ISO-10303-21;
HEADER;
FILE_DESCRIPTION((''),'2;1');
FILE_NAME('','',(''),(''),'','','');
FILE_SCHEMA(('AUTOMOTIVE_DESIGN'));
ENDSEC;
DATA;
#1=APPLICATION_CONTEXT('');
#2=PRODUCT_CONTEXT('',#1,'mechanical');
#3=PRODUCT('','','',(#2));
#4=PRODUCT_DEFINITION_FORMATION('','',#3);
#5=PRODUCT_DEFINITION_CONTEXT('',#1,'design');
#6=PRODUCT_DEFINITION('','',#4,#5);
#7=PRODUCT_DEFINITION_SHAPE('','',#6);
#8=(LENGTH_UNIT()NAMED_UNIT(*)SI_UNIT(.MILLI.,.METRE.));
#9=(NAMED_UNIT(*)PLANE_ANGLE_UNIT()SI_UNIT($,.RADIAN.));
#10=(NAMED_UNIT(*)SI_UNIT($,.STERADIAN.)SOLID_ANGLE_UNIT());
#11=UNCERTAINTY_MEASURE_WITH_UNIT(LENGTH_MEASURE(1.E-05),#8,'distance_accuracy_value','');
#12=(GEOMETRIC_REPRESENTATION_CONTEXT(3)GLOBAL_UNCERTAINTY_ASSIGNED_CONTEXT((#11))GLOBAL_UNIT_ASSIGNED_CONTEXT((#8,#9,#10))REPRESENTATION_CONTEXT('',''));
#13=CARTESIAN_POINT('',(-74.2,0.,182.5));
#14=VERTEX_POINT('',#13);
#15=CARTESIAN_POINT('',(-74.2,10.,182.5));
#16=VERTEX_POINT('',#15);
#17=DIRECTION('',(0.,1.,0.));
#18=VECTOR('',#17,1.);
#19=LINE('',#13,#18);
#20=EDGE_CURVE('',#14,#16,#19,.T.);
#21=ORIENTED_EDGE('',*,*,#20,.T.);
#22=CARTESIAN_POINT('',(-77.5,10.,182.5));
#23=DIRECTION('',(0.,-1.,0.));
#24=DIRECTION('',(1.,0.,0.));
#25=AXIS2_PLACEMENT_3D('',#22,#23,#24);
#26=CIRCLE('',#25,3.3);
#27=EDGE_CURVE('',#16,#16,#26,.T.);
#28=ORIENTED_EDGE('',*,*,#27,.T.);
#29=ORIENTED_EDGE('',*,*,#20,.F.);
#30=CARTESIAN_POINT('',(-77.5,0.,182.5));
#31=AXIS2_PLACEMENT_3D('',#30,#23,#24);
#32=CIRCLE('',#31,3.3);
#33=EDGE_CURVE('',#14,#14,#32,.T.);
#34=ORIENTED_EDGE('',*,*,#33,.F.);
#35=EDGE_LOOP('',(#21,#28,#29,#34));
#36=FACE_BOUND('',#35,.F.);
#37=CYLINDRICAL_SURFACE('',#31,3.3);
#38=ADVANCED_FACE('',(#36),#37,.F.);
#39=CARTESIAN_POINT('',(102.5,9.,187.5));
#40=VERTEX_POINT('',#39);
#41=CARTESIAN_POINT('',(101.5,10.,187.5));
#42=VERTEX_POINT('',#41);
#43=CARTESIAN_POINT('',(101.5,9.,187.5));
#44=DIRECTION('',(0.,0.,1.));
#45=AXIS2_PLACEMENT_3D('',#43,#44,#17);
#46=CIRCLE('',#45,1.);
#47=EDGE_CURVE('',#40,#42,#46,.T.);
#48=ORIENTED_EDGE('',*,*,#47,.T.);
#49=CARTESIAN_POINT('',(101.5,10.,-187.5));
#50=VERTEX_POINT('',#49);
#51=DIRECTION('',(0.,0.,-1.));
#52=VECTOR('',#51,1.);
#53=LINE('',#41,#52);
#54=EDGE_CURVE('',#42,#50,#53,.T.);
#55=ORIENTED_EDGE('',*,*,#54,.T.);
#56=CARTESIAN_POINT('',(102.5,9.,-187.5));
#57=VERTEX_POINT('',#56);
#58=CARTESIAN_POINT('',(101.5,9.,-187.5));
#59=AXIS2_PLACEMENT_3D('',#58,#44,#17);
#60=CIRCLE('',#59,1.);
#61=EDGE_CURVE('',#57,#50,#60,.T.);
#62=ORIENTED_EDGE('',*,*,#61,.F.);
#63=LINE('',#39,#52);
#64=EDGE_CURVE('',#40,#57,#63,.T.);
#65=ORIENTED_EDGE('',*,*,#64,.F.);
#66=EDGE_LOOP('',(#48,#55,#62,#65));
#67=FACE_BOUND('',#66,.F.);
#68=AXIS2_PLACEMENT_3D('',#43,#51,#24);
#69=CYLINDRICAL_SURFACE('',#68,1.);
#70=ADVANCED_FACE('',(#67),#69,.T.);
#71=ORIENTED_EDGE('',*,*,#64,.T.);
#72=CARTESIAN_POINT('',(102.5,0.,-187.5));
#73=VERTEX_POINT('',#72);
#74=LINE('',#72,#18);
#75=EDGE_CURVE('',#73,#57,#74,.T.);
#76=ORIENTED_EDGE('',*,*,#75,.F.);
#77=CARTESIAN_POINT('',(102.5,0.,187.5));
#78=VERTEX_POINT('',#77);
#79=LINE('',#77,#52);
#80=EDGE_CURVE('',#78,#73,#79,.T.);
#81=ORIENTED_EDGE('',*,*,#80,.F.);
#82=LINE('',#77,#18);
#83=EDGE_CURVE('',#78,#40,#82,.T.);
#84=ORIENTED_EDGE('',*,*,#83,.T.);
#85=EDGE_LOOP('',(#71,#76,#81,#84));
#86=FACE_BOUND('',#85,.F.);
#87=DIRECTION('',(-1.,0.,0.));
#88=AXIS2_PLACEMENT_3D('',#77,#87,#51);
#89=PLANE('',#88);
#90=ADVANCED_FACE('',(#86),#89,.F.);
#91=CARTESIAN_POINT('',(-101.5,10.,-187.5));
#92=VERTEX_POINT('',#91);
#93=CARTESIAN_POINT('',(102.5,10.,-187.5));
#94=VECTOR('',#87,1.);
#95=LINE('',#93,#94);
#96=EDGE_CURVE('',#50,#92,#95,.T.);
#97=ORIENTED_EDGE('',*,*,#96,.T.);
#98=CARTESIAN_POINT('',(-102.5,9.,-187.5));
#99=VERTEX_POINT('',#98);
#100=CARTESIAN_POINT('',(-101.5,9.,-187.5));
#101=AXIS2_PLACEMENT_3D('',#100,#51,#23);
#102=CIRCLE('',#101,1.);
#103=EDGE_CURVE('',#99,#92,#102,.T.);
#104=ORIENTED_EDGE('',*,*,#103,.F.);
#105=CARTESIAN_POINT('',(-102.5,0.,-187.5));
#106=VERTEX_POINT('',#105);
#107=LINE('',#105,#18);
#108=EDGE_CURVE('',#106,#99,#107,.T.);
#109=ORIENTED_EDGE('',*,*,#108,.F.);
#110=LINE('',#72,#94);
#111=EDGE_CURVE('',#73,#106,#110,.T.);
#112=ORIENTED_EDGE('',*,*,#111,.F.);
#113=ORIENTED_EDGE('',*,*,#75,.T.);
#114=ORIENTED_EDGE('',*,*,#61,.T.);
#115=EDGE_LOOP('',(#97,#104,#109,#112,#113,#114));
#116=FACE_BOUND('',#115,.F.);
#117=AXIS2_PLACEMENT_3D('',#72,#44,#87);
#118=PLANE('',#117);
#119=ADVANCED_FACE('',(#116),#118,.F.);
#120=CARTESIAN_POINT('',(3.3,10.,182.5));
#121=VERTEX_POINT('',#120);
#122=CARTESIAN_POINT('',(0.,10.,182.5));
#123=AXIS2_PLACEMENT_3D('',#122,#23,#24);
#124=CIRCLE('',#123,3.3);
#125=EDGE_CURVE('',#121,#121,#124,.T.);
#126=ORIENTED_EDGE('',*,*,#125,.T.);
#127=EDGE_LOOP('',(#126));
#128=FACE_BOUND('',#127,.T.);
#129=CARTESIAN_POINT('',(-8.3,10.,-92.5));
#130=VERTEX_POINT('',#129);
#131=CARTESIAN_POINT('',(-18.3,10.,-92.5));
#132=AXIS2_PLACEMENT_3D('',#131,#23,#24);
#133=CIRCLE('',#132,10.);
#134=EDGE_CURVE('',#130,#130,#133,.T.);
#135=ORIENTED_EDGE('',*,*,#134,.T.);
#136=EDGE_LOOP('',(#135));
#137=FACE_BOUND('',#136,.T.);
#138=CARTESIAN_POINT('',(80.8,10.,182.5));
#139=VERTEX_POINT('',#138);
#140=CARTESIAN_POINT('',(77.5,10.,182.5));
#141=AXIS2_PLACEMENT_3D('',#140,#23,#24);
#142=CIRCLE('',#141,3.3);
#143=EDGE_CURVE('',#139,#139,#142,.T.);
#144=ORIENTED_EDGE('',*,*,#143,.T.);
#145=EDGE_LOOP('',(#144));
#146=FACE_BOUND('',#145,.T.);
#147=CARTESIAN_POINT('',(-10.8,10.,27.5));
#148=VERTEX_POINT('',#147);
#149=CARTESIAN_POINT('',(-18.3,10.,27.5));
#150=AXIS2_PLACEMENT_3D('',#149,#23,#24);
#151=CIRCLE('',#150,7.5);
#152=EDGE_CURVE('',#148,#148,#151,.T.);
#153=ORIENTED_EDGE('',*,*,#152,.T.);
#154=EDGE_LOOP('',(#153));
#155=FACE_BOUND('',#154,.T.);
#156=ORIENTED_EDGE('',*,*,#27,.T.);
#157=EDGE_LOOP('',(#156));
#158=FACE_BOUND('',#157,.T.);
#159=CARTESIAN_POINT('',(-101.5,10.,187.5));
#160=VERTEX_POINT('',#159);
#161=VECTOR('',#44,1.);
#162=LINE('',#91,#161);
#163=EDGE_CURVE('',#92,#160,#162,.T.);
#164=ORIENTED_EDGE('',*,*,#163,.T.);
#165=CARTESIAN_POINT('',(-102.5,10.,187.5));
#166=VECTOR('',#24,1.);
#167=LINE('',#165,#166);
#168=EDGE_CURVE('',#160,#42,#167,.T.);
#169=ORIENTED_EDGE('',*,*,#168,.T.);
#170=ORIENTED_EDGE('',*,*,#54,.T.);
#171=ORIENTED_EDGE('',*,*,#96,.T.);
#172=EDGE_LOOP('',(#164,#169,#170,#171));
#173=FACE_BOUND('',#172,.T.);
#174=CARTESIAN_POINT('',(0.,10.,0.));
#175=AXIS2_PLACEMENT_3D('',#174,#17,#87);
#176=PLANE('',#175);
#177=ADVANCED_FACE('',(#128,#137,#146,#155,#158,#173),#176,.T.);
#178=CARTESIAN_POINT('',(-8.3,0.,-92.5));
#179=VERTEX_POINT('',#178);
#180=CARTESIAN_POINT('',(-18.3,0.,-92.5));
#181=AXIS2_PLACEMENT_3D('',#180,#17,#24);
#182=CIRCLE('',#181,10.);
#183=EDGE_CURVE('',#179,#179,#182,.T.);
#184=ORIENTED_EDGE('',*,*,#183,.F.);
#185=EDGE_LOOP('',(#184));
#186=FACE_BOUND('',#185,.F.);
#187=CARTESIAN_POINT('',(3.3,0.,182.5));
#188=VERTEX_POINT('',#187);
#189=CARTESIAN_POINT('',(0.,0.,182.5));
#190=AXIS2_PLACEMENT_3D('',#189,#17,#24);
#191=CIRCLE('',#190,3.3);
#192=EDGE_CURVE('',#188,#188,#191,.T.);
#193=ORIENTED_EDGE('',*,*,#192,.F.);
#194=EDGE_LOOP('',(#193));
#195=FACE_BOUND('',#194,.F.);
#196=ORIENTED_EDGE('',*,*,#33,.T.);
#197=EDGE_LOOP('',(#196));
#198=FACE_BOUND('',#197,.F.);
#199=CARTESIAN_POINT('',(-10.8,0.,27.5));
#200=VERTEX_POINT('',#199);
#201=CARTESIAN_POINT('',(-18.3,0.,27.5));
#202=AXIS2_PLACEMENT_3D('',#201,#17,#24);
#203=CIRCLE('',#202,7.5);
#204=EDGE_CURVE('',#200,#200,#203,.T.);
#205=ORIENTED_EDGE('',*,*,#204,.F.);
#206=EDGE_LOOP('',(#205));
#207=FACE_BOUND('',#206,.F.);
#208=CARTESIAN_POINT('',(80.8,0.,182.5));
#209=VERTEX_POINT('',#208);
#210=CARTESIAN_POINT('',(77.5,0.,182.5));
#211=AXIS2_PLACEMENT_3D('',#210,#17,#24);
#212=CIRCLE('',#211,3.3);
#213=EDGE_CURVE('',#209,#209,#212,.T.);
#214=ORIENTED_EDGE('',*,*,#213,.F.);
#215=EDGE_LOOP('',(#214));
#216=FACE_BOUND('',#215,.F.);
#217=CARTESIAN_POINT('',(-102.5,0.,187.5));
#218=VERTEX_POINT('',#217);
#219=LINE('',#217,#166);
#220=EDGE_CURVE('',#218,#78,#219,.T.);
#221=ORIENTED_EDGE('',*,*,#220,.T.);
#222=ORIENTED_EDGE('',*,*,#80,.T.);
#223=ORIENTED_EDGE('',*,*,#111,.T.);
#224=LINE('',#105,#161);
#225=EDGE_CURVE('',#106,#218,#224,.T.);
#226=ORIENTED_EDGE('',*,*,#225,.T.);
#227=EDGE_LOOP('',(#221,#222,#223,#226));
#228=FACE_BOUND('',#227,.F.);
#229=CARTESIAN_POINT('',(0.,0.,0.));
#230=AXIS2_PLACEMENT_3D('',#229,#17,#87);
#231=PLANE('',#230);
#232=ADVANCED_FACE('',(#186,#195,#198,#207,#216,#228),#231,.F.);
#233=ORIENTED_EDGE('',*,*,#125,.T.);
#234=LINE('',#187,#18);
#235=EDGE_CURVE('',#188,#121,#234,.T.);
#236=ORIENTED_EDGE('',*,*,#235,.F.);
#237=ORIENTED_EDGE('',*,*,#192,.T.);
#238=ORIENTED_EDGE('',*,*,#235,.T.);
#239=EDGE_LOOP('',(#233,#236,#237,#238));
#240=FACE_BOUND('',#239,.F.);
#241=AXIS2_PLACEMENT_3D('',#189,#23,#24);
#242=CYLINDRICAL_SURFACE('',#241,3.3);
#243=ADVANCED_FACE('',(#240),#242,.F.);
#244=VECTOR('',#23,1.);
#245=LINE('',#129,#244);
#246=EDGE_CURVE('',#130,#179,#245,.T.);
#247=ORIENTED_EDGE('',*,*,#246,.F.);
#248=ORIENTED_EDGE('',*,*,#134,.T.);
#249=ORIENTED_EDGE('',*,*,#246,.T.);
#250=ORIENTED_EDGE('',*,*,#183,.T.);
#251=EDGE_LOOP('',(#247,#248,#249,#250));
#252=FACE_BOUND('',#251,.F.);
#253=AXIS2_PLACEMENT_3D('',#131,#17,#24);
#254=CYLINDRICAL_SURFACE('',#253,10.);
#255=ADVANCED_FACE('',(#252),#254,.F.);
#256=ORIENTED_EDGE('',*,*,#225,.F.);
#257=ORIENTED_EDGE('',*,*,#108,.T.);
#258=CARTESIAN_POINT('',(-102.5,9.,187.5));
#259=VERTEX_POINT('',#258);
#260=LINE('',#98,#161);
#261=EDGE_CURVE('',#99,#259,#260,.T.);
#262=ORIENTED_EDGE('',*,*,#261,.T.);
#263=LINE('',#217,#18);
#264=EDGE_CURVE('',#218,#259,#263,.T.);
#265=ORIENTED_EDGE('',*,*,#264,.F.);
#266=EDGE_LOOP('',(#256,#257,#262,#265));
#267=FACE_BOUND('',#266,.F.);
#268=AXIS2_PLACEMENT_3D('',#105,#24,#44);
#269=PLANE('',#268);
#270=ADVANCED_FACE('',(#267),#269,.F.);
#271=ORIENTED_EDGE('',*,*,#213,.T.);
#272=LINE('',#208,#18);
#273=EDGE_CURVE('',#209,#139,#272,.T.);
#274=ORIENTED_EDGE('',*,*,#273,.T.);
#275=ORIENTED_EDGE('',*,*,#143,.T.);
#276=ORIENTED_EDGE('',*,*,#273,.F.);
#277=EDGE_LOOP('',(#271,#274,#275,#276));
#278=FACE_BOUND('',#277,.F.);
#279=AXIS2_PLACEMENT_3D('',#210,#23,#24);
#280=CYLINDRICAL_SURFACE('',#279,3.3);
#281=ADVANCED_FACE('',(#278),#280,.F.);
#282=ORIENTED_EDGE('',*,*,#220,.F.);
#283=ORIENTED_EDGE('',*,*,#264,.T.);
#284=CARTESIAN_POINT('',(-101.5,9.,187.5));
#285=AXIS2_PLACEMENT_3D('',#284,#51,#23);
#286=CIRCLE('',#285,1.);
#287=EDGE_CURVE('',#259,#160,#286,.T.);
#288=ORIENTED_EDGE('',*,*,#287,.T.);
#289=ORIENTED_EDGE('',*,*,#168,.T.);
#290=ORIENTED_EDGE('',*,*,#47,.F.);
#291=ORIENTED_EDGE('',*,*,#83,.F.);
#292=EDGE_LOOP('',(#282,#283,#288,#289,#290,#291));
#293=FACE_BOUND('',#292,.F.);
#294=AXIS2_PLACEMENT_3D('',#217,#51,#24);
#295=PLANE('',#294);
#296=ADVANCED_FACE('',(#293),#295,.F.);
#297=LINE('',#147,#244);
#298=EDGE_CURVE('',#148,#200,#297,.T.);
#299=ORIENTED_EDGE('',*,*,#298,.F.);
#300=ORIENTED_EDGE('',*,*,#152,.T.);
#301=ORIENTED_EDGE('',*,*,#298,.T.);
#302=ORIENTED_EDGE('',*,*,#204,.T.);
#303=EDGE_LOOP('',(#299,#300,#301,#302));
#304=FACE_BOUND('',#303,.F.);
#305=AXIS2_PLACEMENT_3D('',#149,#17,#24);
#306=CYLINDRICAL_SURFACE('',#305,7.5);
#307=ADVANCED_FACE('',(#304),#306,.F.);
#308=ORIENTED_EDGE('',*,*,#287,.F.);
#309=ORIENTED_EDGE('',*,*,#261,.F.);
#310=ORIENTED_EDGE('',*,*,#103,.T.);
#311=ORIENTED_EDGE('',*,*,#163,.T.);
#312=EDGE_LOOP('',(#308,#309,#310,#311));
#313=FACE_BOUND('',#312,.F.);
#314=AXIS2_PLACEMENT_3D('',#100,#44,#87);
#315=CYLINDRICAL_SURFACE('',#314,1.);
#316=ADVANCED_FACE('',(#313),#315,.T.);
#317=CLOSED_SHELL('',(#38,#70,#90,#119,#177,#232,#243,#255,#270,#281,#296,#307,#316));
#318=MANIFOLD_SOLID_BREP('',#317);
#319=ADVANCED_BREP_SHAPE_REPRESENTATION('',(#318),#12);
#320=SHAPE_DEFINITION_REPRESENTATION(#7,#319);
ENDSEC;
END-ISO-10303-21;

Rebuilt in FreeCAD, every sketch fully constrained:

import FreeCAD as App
import Part
import Sketcher


def edges_at(feature, points):
    """Names of the edges that pass closest to the given points."""
    edges = feature.Shape.Edges
    near = lambda p: min(range(len(edges)), key=lambda i: edges[i].distToShape(Part.Vertex(*p))[0])
    return sorted({f"Edge{near(p) + 1}" for p in points})

doc = App.newDocument("Part")
body = doc.addObject("PartDesign::Body", "Body")

# Sketch on XZ plane
sketch1 = doc.addObject("Sketcher::SketchObject", "Sketch")
body.addObject(sketch1)
sketch1.AttachmentSupport = (doc.XZ_Plane, [""])
sketch1.MapMode = "FlatFace"
sketch1.addGeometry(Part.LineSegment(App.Vector(-102, -188, 0), App.Vector(-102, 188, 0)), False)
sketch1.addGeometry(Part.LineSegment(App.Vector(-102, 188, 0), App.Vector(102, 188, 0)), False)
sketch1.addGeometry(Part.LineSegment(App.Vector(102, 188, 0), App.Vector(102, -188, 0)), False)
sketch1.addGeometry(Part.LineSegment(App.Vector(102, -188, 0), App.Vector(-102, -188, 0)), False)
sketch1.addConstraint(Sketcher.Constraint("Coincident", 0, 2, 1, 1))
sketch1.addConstraint(Sketcher.Constraint("Coincident", 1, 2, 2, 1))
sketch1.addConstraint(Sketcher.Constraint("Coincident", 2, 2, 3, 1))
sketch1.addConstraint(Sketcher.Constraint("Coincident", 3, 2, 0, 1))
sketch1.addConstraint(Sketcher.Constraint("Vertical", 0))
sketch1.addConstraint(Sketcher.Constraint("Horizontal", 1))
sketch1.addConstraint(Sketcher.Constraint("Vertical", 2))
sketch1.addConstraint(Sketcher.Constraint("Horizontal", 3))
sketch1.addConstraint(Sketcher.Constraint("Symmetric", 0, 2, 2, 2, -1, 1))
sketch1.addConstraint(Sketcher.Constraint("DistanceX", 1, 1, 1, 2, 205.0))
sketch1.addConstraint(Sketcher.Constraint("DistanceY", 0, 1, 0, 2, 375.0))
pad1 = doc.addObject("PartDesign::Pad", "Pad")
body.addObject(pad1)
pad1.Profile = sketch1
pad1.Length = 10
pad1.Reversed = True
doc.recompute()

fillet = doc.addObject("PartDesign::Fillet", "Fillet")
body.addObject(fillet)
fillet.Base = (pad1, edges_at(pad1, [(102.5, 10, 0), (-102.5, 10, 0)]))
fillet.Radius = 1

# Sketch on XZ plane
sketch2 = doc.addObject("Sketcher::SketchObject", "Sketch001")
body.addObject(sketch2)
sketch2.AttachmentSupport = (doc.XZ_Plane, [""])
sketch2.MapMode = "FlatFace"
sketch2.addGeometry(Part.Circle(App.Vector(-77.5, 182.5, 0), App.Vector(0, 0, 1), 3.3), False)
sketch2.addGeometry(Part.Circle(App.Vector(0, 182.5, 0), App.Vector(0, 0, 1), 3.3), False)
sketch2.addGeometry(Part.Circle(App.Vector(77.5, 182.5, 0), App.Vector(0, 0, 1), 3.3), False)
sketch2.addConstraint(Sketcher.Constraint("Equal", 0, 1))
sketch2.addConstraint(Sketcher.Constraint("Equal", 1, 2))
sketch2.addConstraint(Sketcher.Constraint("Symmetric", 0, 3, 2, 3, -2))
sketch2.addConstraint(Sketcher.Constraint("PointOnObject", 1, 3, -2))
sketch2.addConstraint(Sketcher.Constraint("Horizontal", 0, 3, 1, 3))
sketch2.addConstraint(Sketcher.Constraint("Diameter", 0, 6.6))
sketch2.addConstraint(Sketcher.Constraint("DistanceX", 0, 3, -1, 1, 77.5))
sketch2.addConstraint(Sketcher.Constraint("DistanceY", -1, 1, 0, 3, 182.5))
pocket1 = doc.addObject("PartDesign::Pocket", "Pocket")
body.addObject(pocket1)
pocket1.Profile = sketch2
pocket1.Length = 10

# Sketch on XZ plane
sketch3 = doc.addObject("Sketcher::SketchObject", "Sketch002")
body.addObject(sketch3)
sketch3.AttachmentSupport = (doc.XZ_Plane, [""])
sketch3.MapMode = "FlatFace"
sketch3.AttachmentOffset = App.Placement(App.Vector(0, 0, -10), App.Rotation())
sketch3.addGeometry(Part.Circle(App.Vector(-18, 28, 0), App.Vector(0, 0, 1), 8), False)
sketch3.addConstraint(Sketcher.Constraint("Diameter", 0, 15.0))
sketch3.addConstraint(Sketcher.Constraint("DistanceX", 0, 3, -1, 1, 18.3))
sketch3.addConstraint(Sketcher.Constraint("DistanceY", -1, 1, 0, 3, 27.5))
pocket2 = doc.addObject("PartDesign::Pocket", "Pocket001")
body.addObject(pocket2)
pocket2.Profile = sketch3
pocket2.Length = 10
pocket2.Reversed = True

# Sketch on XZ plane
sketch4 = doc.addObject("Sketcher::SketchObject", "Sketch003")
body.addObject(sketch4)
sketch4.AttachmentSupport = (doc.XZ_Plane, [""])
sketch4.MapMode = "FlatFace"
sketch4.AttachmentOffset = App.Placement(App.Vector(0, 0, -10), App.Rotation())
sketch4.addGeometry(Part.Circle(App.Vector(-18, -92, 0), App.Vector(0, 0, 1), 10), False)
sketch4.addConstraint(Sketcher.Constraint("Diameter", 0, 20.0))
sketch4.addConstraint(Sketcher.Constraint("DistanceX", 0, 3, -1, 1, 18.3))
sketch4.addConstraint(Sketcher.Constraint("DistanceY", 0, 3, -1, 1, 92.5))
pocket3 = doc.addObject("PartDesign::Pocket", "Pocket002")
body.addObject(pocket3)
pocket3.Profile = sketch4
pocket3.Length = 10
pocket3.Reversed = True

doc.recompute()
